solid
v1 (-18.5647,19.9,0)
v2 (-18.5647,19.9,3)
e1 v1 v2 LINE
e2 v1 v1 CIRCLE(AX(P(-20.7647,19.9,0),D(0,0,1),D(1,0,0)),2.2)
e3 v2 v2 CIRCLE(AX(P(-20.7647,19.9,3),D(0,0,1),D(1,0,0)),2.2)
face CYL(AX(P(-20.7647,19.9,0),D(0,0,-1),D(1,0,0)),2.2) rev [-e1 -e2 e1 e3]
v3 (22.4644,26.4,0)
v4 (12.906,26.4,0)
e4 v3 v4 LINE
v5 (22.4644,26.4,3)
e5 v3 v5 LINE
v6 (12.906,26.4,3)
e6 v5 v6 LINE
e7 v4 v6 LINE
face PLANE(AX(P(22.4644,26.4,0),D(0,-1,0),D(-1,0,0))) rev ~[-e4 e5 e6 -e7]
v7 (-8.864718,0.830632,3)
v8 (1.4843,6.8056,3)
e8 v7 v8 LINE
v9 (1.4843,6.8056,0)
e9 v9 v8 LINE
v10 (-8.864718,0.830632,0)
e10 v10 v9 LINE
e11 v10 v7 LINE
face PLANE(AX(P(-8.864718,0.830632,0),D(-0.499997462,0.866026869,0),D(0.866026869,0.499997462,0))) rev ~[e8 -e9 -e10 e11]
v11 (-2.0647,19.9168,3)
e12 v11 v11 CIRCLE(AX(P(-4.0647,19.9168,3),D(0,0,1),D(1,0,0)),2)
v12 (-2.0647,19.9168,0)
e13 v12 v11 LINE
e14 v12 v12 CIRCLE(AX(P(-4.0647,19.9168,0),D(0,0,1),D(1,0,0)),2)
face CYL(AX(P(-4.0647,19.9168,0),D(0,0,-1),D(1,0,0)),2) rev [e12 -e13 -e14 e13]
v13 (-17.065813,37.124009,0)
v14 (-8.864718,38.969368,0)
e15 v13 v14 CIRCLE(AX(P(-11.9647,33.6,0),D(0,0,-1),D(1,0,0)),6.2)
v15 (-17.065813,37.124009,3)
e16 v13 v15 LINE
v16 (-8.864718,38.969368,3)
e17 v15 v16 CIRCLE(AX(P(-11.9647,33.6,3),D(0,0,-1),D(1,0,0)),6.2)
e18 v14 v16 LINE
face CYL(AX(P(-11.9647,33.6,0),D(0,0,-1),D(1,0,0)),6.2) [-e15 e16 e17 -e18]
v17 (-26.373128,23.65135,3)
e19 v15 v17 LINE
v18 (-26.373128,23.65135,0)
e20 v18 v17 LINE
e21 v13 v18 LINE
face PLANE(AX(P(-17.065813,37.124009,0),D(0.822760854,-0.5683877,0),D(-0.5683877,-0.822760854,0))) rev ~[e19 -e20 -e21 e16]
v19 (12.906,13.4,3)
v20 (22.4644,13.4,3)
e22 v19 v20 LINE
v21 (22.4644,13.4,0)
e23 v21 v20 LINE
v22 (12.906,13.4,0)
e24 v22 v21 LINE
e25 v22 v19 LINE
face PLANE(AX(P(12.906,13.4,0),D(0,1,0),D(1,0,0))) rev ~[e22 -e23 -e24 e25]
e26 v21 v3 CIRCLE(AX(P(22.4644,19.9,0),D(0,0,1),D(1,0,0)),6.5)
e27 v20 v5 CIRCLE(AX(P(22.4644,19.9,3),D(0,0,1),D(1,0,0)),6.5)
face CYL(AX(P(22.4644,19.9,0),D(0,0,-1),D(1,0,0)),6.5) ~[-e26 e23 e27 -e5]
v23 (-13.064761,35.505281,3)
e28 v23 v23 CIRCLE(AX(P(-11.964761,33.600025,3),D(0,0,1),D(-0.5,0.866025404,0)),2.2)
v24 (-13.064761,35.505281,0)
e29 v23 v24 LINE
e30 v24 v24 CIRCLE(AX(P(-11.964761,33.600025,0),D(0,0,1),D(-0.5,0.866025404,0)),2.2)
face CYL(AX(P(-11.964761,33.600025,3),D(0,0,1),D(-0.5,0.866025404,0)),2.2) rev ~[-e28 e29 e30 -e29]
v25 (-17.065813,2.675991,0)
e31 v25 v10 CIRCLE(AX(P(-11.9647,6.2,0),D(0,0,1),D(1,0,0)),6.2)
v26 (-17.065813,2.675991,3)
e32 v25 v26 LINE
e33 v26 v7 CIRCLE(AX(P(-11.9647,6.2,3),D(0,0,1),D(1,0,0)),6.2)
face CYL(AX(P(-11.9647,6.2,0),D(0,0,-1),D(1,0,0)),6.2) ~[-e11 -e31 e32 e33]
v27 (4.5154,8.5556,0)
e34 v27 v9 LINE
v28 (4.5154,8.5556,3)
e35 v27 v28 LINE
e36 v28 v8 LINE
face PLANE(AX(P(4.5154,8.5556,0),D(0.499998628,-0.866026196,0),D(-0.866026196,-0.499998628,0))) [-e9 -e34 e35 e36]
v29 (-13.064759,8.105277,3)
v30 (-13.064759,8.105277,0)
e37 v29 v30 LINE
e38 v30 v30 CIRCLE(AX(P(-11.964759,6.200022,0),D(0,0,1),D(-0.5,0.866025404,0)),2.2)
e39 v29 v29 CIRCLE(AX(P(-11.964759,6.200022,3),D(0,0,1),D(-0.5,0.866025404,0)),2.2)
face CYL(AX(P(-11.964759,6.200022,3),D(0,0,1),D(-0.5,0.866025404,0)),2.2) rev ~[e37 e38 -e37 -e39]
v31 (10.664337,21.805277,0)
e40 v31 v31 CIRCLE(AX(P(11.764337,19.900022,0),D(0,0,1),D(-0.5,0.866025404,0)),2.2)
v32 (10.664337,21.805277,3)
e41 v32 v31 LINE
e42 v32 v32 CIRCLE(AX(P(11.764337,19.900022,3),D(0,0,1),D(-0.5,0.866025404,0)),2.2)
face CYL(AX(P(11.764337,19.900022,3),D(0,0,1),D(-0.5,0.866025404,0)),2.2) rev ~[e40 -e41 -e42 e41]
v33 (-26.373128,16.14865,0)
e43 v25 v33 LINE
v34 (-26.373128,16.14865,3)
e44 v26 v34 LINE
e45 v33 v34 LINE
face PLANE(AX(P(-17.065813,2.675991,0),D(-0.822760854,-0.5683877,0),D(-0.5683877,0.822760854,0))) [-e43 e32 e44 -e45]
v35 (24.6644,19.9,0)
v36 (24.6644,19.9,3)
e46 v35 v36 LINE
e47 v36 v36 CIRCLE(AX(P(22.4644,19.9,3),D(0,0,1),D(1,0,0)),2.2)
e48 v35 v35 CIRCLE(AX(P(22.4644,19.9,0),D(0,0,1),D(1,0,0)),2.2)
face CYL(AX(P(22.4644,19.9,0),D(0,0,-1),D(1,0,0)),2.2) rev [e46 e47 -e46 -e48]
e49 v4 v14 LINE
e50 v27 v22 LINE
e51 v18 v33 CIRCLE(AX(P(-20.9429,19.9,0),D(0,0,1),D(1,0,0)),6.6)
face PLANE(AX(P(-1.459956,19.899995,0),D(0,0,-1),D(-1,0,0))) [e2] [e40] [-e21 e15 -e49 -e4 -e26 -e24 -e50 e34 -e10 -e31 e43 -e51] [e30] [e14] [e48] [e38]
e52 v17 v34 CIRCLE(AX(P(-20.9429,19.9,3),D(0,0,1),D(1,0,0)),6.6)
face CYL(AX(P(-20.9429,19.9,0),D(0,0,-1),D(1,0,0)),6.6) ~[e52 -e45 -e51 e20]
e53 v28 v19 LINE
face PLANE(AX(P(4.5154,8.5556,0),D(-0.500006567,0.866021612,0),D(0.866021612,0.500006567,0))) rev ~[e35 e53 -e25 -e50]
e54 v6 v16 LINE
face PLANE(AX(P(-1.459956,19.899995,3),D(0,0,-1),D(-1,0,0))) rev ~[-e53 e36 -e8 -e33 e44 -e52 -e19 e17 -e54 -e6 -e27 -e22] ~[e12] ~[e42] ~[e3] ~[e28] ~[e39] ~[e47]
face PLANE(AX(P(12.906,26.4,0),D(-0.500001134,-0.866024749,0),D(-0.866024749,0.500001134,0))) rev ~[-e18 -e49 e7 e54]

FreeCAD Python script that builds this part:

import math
import FreeCAD as App
import Part
import Sketcher
Q = App.Units.Quantity

doc = App.newDocument("Part")
body = doc.addObject("PartDesign::Body", "Body")

# Sketch on XY plane
sketch1 = body.newObject("Sketcher::SketchObject", "Sketch")
sketch1.AttachmentSupport = (doc.getObject("XY_Plane"), [""])
sketch1.MapMode = "FlatFace"
sketch1.addGeometry(Part.LineSegment(App.Vector(-26.4, 16.1, 0), App.Vector(-17.1, 2.7, 0)), False)
sketch1.addGeometry(Part.ArcOfCircle(Part.Circle(App.Vector(-12, 6.2, 0), App.Vector(0, 0, 1), 6.2), math.radians(-145), math.radians(-60)), False)
sketch1.addGeometry(Part.LineSegment(App.Vector(-8.9, 0.8, 0), App.Vector(1.5, 6.8, 0)), False)
sketch1.addGeometry(Part.LineSegment(App.Vector(1.5, 6.8, 0), App.Vector(4.5, 8.6, 0)), False)
sketch1.addGeometry(Part.LineSegment(App.Vector(4.5, 8.6, 0), App.Vector(12.9, 13.4, 0)), False)
sketch1.addGeometry(Part.LineSegment(App.Vector(12.9, 13.4, 0), App.Vector(22.5, 13.4, 0)), False)
sketch1.addGeometry(Part.ArcOfCircle(Part.Circle(App.Vector(22.5, 19.9, 0), App.Vector(0, 0, 1), 6.5), math.radians(-90), math.radians(90)), False)
sketch1.addGeometry(Part.LineSegment(App.Vector(22.5, 26.4, 0), App.Vector(12.9, 26.4, 0)), False)
sketch1.addGeometry(Part.LineSegment(App.Vector(12.9, 26.4, 0), App.Vector(-8.9, 39, 0)), False)
sketch1.addGeometry(Part.ArcOfCircle(Part.Circle(App.Vector(-12, 33.6, 0), App.Vector(0, 0, 1), 6.2), math.radians(60), math.radians(145)), False)
sketch1.addGeometry(Part.LineSegment(App.Vector(-17.1, 37.1, 0), App.Vector(-26.4, 23.7, 0)), False)
sketch1.addGeometry(Part.ArcOfCircle(Part.Circle(App.Vector(-20.9, 19.9, 0), App.Vector(0, 0, 1), 6.6), math.radians(145), math.radians(215)), False)
sketch1.addGeometry(Part.Circle(App.Vector(-20.8, 19.9, 0), App.Vector(0, 0, 1), 2.2), False)
sketch1.addGeometry(Part.Circle(App.Vector(22.5, 19.9, 0), App.Vector(0, 0, 1), 2.2), False)
sketch1.addGeometry(Part.Circle(App.Vector(-4.1, 19.9, 0), App.Vector(0, 0, 1), 2), False)
sketch1.addConstraint(Sketcher.Constraint("Tangent", 0, 2, 1, 1))
sketch1.addConstraint(Sketcher.Constraint("Tangent", 1, 2, 2, 1))
sketch1.addConstraint(Sketcher.Constraint("Coincident", 2, 2, 3, 1))
sketch1.addConstraint(Sketcher.Constraint("Coincident", 3, 2, 4, 1))
sketch1.addConstraint(Sketcher.Constraint("Coincident", 4, 2, 5, 1))
sketch1.addConstraint(Sketcher.Constraint("Tangent", 5, 2, 6, 1))
sketch1.addConstraint(Sketcher.Constraint("Tangent", 6, 2, 7, 1))
sketch1.addConstraint(Sketcher.Constraint("Coincident", 7, 2, 8, 1))
sketch1.addConstraint(Sketcher.Constraint("Tangent", 8, 2, 9, 1))
sketch1.addConstraint(Sketcher.Constraint("Tangent", 9, 2, 10, 1))
sketch1.addConstraint(Sketcher.Constraint("Tangent", 10, 2, 11, 1))
sketch1.addConstraint(Sketcher.Constraint("Tangent", 11, 2, 0, 1))
sketch1.addConstraint(Sketcher.Constraint("Horizontal", 5))
sketch1.addConstraint(Sketcher.Constraint("Horizontal", 7))
sketch1.addConstraint(Sketcher.Constraint("Coincident", 13, 3, 6, 3))
sketch1.addConstraint(Sketcher.Constraint("Equal", 1, 9))
sketch1.addConstraint(Sketcher.Constraint("Equal", 12, 13))
sketch1.addConstraint(Sketcher.Constraint("Parallel", 2, 3))
sketch1.addConstraint(Sketcher.Constraint("Parallel", 3, 4))
sketch1.addConstraint(Sketcher.Constraint("Horizontal", 6, 3, 11, 3))
sketch1.addConstraint(Sketcher.Constraint("Horizontal", 11, 3, 12, 3))
sketch1.addConstraint(Sketcher.Constraint("Vertical", 1, 3, 9, 3))
sketch1.addConstraint(Sketcher.Constraint("Vertical", 4, 2, 7, 2))
sketch1.addConstraint(Sketcher.Constraint("Vertical", 1, 2, 8, 2))
sketch1.addConstraint(Sketcher.Constraint("Diameter", 14, Q("4 mm")))
sketch1.addConstraint(Sketcher.Constraint("Diameter", 12, Q("4.4 mm")))
sketch1.addConstraint(Sketcher.Constraint("Radius", 1, Q("6.2 mm")))
sketch1.addConstraint(Sketcher.Constraint("Radius", 6, Q("6.5 mm")))
sketch1.addConstraint(Sketcher.Constraint("Radius", 11, Q("6.6 mm")))
sketch1.addConstraint(Sketcher.Constraint("Angle", 2, Q("30 deg")))
sketch1.addConstraint(Sketcher.Constraint("Distance", 3, Q("3.5 mm")))
sketch1.addConstraint(Sketcher.Constraint("DistanceY", -1, 1, 1, 3, Q("6.2 mm")))
sketch1.addConstraint(Sketcher.Constraint("DistanceY", -1, 1, 6, 3, Q("19.9 mm")))
sketch1.addConstraint(Sketcher.Constraint("DistanceX", 12, 3, 1, 3, Q("8.8 mm")))
sketch1.addConstraint(Sketcher.Constraint("DistanceX", 9, 3, 14, 3, Q("7.9 mm")))
sketch1.addConstraint(Sketcher.Constraint("Distance", 2, Q("11.95 mm")))
sketch1.addConstraint(Sketcher.Constraint("DistanceX", 0, 2, 2, 2, Q("18.55 mm")))
sketch1.addConstraint(Sketcher.Constraint("DistanceX", 2, 2, 6, 3, Q("20.98 mm")))
sketch1.addConstraint(Sketcher.Constraint("DistanceX", 11, 3, -1, 1, Q("20.943 mm")))
sketch1.addConstraint(Sketcher.Constraint("DistanceY", -1, 1, 14, 3, Q("19.9168 mm")))
pad1 = body.newObject("PartDesign::Pad", "Pad")
pad1.Profile = sketch1
pad1.Length = 3

# Sketch on XY plane
sketch2 = body.newObject("Sketcher::SketchObject", "Sketch001")
sketch2.AttachmentSupport = (doc.getObject("XY_Plane"), [""])
sketch2.MapMode = "FlatFace"
sketch2.AttachmentOffset = App.Placement(App.Vector(0, 0, 3), App.Rotation())
sketch2.addGeometry(Part.Circle(App.Vector(-12, 6.2, 0), App.Vector(0, 0, 1), 2.2), False)
sketch2.addGeometry(Part.Circle(App.Vector(-12, 33.6, 0), App.Vector(0, 0, 1), 2.2), False)
sketch2.addGeometry(Part.Circle(App.Vector(11.8, 19.9, 0), App.Vector(0, 0, 1), 2.2), False)
sketch2.addConstraint(Sketcher.Constraint("Equal", 0, 1))
sketch2.addConstraint(Sketcher.Constraint("Equal", 1, 2))
sketch2.addConstraint(Sketcher.Constraint("Vertical", 0, 3, 1, 3))
sketch2.addConstraint(Sketcher.Constraint("Diameter", 0, Q("4.4 mm")))
sketch2.addConstraint(Sketcher.Constraint("DistanceY", -1, 1, 0, 3, Q("6.2 mm")))
sketch2.addConstraint(Sketcher.Constraint("DistanceY", -1, 1, 1, 3, Q("33.6 mm")))
sketch2.addConstraint(Sketcher.Constraint("DistanceY", -1, 1, 2, 3, Q("19.9 mm")))
sketch2.addConstraint(Sketcher.Constraint("DistanceX", 0, 3, 2, 3, Q("23.729 mm")))
sketch2.addConstraint(Sketcher.Constraint("DistanceX", 0, 3, -1, 1, Q("11.9648 mm")))
pocket1 = body.newObject("PartDesign::Pocket", "Pocket")
pocket1.Profile = sketch2
pocket1.Length = 80.9131

doc.recompute()
